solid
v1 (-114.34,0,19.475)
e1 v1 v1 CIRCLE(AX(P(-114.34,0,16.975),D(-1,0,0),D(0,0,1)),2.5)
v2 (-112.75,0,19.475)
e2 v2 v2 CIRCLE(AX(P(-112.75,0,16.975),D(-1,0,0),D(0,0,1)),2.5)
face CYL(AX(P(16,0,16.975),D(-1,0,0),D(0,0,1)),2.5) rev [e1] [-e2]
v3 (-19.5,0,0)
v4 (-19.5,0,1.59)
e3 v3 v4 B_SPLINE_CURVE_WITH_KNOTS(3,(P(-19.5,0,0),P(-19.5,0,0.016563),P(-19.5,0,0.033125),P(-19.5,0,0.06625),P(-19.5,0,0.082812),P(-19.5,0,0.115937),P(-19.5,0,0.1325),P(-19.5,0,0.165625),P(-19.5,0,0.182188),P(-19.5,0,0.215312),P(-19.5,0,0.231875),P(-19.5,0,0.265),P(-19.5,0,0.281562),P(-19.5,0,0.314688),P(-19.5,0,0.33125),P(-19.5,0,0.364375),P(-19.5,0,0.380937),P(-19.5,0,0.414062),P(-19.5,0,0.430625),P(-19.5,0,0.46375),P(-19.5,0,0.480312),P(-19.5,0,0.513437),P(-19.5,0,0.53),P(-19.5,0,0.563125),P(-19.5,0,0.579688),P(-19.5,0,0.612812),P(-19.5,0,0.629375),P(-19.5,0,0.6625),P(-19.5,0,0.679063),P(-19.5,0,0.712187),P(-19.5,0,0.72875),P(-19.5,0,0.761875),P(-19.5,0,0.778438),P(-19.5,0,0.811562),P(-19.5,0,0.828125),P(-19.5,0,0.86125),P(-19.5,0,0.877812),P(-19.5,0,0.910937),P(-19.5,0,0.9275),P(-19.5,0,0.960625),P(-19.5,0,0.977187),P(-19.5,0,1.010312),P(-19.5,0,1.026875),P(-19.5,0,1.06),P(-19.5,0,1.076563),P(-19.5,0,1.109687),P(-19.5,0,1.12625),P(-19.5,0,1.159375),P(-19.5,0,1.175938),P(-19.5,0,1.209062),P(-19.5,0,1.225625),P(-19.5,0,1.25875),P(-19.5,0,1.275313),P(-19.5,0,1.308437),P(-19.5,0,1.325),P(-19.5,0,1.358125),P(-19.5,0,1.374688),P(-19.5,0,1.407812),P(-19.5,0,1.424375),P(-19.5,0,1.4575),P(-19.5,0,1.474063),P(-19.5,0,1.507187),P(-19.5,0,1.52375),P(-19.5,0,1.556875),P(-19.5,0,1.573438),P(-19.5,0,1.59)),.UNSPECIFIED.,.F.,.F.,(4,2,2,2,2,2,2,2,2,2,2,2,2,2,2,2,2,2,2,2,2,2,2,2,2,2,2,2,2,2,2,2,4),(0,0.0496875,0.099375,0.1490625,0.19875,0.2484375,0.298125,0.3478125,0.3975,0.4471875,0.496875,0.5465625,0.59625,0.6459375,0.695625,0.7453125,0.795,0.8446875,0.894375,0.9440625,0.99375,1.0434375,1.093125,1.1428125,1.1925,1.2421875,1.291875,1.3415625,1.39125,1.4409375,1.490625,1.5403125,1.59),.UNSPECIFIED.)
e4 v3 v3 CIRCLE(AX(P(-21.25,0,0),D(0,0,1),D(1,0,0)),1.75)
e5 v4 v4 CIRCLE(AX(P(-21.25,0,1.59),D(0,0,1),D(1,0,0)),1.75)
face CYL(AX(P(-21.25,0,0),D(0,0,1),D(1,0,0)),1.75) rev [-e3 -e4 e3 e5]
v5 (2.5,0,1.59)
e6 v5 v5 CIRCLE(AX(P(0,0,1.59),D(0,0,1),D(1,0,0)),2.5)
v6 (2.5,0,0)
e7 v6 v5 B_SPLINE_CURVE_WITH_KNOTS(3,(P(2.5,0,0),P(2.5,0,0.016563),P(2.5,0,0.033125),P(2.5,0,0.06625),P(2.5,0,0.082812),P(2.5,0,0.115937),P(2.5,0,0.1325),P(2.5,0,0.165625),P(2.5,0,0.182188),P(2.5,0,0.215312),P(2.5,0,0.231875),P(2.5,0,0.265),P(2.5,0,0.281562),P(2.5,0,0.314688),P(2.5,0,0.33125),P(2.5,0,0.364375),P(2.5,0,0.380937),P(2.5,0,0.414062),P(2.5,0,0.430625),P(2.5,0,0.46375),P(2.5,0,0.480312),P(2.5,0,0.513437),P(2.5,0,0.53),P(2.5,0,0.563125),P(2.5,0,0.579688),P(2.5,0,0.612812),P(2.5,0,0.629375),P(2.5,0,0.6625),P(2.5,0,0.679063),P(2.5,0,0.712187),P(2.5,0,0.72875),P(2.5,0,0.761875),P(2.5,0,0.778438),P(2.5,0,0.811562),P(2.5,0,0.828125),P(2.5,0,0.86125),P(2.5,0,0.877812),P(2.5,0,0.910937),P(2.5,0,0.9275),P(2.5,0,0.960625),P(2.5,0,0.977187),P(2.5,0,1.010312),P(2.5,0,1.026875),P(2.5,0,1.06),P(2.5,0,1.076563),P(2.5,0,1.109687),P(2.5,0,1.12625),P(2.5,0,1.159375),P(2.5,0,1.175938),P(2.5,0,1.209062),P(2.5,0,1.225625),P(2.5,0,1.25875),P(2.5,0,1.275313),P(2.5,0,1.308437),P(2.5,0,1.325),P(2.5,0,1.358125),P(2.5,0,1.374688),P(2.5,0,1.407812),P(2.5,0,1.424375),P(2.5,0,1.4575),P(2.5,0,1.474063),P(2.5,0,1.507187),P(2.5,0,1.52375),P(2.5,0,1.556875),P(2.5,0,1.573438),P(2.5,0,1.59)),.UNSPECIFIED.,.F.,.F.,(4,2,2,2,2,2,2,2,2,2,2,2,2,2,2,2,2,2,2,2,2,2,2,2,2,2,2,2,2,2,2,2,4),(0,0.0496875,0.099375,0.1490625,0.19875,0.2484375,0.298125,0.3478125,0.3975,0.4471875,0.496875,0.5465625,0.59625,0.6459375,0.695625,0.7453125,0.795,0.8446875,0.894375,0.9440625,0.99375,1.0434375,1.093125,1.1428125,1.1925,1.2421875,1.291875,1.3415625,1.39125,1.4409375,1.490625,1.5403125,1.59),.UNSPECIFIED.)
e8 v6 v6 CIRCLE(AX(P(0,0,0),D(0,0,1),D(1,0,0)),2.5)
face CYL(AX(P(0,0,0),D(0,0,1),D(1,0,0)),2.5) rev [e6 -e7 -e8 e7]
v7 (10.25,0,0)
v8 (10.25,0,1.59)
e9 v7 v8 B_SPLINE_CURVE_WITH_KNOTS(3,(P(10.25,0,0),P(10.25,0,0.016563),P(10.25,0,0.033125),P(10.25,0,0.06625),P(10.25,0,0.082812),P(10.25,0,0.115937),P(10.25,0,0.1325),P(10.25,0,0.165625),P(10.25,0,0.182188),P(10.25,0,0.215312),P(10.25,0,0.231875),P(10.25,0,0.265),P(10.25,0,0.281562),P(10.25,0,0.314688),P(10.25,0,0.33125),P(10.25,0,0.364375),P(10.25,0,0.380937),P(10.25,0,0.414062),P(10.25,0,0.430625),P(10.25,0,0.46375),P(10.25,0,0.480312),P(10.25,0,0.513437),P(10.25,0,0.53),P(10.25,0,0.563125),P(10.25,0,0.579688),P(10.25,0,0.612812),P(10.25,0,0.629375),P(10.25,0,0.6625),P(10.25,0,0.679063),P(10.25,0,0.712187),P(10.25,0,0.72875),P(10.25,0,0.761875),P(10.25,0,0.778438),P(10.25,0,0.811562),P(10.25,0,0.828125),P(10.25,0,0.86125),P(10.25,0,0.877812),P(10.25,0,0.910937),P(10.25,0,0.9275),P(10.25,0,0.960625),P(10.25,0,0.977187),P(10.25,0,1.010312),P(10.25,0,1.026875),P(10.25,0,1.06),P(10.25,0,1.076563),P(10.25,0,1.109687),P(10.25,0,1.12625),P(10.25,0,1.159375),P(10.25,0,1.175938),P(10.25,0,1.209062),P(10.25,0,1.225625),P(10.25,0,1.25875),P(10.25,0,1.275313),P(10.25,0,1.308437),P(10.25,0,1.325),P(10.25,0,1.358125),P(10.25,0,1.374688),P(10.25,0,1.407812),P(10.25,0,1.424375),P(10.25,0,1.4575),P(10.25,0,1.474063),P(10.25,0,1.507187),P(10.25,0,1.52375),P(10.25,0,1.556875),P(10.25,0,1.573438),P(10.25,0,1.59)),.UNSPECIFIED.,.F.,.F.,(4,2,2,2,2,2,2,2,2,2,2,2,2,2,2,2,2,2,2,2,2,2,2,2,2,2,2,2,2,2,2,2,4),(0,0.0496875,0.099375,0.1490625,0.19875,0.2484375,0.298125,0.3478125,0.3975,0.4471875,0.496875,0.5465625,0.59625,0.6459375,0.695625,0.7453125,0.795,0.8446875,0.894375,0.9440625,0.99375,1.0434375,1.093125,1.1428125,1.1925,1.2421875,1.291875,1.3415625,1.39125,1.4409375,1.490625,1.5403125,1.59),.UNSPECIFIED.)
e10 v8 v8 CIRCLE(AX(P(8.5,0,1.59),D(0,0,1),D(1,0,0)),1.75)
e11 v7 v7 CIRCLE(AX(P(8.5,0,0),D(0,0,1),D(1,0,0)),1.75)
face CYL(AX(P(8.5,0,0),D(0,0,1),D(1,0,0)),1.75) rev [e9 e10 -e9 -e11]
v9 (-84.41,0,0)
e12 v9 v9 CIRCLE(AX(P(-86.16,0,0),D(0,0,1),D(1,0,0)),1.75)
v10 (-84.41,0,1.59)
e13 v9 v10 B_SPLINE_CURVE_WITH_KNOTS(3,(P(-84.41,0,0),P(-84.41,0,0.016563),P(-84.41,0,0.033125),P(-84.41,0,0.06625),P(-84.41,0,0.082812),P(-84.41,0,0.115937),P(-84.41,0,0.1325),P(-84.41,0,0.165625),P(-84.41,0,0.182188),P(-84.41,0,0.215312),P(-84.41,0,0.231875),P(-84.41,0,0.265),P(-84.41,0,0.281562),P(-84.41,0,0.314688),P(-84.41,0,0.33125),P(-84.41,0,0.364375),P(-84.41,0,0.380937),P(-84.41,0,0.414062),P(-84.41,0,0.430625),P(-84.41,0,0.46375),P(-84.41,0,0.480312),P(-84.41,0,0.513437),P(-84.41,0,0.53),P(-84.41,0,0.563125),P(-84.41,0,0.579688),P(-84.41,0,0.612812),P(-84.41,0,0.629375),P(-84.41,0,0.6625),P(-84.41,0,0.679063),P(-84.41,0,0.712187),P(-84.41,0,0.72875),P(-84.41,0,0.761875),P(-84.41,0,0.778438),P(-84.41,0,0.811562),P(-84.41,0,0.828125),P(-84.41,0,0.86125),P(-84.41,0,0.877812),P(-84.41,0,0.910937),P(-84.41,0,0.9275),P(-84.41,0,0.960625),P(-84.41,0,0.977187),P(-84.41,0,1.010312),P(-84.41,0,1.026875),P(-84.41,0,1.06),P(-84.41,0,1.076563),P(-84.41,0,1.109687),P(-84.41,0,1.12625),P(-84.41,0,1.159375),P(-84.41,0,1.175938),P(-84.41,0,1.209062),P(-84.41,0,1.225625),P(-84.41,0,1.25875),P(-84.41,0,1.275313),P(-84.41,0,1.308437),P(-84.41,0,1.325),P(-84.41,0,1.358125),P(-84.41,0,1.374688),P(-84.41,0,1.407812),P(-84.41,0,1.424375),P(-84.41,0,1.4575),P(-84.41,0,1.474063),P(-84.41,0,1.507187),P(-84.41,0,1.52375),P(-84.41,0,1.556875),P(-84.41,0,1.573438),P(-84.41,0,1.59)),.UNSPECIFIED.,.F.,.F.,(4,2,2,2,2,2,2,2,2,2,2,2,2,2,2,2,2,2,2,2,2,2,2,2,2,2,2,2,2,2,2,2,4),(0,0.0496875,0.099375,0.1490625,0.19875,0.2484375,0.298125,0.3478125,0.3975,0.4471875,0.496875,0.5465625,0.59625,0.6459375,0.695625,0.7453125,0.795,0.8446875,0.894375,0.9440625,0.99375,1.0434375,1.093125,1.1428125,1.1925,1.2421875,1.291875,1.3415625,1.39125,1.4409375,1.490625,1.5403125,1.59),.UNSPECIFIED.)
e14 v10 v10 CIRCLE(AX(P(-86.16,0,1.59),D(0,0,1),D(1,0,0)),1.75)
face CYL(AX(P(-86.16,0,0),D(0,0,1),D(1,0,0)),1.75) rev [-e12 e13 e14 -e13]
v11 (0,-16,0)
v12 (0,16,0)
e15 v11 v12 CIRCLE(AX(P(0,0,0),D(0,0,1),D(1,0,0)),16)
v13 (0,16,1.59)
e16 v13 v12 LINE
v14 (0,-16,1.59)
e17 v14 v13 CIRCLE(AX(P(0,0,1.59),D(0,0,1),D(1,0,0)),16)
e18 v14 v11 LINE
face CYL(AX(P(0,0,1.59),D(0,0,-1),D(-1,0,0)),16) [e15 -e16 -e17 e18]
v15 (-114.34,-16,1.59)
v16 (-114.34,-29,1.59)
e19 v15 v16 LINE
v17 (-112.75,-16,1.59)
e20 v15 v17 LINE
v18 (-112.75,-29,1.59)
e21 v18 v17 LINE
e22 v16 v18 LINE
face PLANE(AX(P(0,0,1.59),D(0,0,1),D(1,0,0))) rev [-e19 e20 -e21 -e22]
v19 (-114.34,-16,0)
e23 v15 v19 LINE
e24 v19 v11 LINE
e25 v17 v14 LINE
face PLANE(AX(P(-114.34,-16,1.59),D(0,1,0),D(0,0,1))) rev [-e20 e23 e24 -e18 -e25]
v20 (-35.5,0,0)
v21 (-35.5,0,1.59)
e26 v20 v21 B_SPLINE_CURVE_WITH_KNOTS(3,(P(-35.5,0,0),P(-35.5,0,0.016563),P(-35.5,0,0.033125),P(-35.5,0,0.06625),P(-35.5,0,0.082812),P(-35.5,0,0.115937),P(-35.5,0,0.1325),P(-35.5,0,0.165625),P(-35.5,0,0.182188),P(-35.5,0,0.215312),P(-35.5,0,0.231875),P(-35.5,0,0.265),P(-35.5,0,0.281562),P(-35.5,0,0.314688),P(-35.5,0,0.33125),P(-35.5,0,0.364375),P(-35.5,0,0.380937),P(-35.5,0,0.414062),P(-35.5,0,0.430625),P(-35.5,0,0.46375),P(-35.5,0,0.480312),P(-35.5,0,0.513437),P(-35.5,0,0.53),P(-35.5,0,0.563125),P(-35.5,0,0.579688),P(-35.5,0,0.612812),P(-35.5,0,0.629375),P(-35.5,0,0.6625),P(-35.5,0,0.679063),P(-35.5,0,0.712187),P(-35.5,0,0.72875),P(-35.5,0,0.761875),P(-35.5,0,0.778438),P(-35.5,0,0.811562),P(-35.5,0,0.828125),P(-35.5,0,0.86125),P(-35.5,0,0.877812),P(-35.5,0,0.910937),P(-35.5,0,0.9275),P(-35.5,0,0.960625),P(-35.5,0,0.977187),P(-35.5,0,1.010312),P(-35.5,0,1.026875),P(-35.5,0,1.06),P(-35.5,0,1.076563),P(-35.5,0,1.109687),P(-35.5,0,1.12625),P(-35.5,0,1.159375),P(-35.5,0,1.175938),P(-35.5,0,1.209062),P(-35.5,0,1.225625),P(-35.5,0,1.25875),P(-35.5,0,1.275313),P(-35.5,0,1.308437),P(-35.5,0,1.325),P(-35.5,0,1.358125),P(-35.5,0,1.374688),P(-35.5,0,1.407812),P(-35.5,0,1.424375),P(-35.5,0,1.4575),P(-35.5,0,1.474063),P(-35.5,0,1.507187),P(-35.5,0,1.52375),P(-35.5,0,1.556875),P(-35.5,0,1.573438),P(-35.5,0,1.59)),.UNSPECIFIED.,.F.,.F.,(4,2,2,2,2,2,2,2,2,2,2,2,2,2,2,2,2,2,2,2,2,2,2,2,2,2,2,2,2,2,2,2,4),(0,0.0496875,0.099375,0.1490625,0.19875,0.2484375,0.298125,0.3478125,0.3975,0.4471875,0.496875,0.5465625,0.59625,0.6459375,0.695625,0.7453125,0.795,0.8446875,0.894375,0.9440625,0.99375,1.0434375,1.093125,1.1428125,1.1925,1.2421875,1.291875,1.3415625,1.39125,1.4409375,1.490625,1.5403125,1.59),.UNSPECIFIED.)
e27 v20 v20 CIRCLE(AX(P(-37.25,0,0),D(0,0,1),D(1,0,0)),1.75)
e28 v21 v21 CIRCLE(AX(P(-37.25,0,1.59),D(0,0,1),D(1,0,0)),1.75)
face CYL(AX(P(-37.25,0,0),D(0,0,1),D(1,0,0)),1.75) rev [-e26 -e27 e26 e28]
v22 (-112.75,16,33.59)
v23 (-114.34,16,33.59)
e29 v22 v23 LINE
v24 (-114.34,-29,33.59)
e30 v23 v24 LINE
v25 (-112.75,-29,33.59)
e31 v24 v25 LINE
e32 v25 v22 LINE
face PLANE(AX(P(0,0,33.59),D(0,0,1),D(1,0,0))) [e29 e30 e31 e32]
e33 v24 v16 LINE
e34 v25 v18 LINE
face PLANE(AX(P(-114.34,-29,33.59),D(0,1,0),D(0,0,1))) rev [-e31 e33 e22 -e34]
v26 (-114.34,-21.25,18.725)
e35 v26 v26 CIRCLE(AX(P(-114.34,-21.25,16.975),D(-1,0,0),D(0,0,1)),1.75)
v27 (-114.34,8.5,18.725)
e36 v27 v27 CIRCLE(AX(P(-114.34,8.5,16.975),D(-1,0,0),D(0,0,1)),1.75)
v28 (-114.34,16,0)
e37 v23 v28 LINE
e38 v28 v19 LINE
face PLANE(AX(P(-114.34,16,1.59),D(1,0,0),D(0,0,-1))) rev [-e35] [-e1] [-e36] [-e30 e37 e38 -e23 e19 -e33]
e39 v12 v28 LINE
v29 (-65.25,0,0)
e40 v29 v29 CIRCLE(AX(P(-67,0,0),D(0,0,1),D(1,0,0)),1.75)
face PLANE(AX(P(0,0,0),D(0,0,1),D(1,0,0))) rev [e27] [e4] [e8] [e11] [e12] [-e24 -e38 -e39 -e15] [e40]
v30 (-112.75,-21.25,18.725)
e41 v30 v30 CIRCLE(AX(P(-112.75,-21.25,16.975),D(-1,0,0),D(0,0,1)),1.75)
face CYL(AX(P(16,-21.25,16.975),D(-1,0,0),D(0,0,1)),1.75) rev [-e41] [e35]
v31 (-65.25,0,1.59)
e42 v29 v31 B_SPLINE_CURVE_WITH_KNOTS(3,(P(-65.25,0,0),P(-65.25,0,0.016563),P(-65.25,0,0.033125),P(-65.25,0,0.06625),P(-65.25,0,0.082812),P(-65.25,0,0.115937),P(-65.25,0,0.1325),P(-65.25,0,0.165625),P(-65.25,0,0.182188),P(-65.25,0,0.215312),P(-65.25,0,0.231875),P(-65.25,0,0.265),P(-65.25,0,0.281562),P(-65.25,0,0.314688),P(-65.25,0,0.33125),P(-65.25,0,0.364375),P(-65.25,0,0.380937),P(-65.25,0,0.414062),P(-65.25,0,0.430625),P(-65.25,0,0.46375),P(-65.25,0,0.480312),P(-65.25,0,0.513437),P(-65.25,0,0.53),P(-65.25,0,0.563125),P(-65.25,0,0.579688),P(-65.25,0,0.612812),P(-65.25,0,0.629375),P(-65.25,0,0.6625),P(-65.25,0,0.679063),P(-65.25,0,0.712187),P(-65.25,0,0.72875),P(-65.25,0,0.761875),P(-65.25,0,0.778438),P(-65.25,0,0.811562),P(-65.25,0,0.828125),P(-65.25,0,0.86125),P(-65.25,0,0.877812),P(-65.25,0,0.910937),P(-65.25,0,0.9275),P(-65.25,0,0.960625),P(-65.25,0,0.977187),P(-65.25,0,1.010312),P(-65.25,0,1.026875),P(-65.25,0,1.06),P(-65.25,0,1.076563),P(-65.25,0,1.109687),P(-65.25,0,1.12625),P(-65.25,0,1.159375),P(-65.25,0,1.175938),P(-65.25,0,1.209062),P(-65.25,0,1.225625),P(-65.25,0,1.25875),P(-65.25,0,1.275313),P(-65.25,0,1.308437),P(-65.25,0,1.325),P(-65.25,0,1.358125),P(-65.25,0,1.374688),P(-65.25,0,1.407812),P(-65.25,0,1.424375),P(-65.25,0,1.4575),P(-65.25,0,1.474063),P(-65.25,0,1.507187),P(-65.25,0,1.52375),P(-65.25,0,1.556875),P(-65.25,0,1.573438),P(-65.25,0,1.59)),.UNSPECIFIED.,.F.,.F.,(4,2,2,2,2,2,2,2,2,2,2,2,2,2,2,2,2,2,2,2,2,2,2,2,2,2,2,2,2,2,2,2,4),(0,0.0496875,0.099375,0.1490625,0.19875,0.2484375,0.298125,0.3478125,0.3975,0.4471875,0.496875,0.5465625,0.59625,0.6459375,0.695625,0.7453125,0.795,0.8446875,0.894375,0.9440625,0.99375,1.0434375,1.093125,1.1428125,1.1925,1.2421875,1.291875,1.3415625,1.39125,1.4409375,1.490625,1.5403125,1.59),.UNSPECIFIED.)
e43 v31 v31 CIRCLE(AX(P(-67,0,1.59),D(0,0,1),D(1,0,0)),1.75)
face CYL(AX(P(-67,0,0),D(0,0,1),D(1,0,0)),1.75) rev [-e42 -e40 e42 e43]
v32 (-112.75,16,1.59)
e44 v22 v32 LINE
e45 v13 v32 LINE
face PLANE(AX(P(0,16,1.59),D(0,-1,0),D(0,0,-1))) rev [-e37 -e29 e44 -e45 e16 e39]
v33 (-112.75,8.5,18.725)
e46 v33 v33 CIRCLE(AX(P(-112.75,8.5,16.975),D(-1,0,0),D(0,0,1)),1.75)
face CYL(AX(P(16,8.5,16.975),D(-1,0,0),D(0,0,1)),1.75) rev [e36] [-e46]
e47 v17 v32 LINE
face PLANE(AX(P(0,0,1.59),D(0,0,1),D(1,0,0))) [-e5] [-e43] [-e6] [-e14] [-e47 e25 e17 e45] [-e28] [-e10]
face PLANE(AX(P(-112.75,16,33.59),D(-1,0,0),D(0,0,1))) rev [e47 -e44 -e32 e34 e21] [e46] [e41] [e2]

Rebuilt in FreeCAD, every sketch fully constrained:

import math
import FreeCAD as App
import Part
import Sketcher

V = App.Vector
Q = App.Units.Quantity

doc = App.newDocument("Part")
params = doc.addObject("Spreadsheet::Sheet", "Params")
for row, (alias, value) in enumerate([
    ("sketch1_radius", "16 mm"),
    ("sketch1_width", "114.34 mm"),
    ("pad1_length", "1.59 mm"),
    ("sketch2_height", "45 mm"),
    ("sketch2_width", "1.59 mm"),
    ("pad2_length", "32 mm"),
    ("sketch3_diameter", "5 mm"),
    ("sketch3_diameter2", "3.5 mm"),
    ("sketch4_diameter", "5 mm"),
    ("sketch4_diameter2", "3.5 mm"),
], start=1):
    params.set(f"A{row}", alias)
    params.set(f"B{row}", "=" + value)
    params.setAlias(f"B{row}", alias)

body = doc.addObject("PartDesign::Body", "Body")

# Sketch on XY plane
sketch1 = body.newObject("Sketcher::SketchObject", "Sketch")
sketch1.AttachmentSupport = (doc.getObject("XY_Plane"), [""])
sketch1.MapMode = "FlatFace"
sketch1.addGeometry([
    Part.LineSegment(V(0, 16, 0), V(-114.34, 16, 0)),
    Part.LineSegment(V(-114.34, 16, 0), V(-114.34, -16, 0)),
    Part.LineSegment(V(-114.34, -16, 0), V(0, -16, 0)),
    Part.ArcOfCircle(Part.Circle(V(0, 0, 0), V(0, 0, 1), 16), math.radians(-90), math.radians(90)),
], False)
sketch1.addConstraint([
    Sketcher.Constraint("Coincident", 0, 2, 1, 1),
    Sketcher.Constraint("Coincident", 1, 2, 2, 1),
    Sketcher.Constraint("Tangent", 2, 2, 3, 1),
    Sketcher.Constraint("Tangent", 3, 2, 0, 1),
    Sketcher.Constraint("Horizontal", 0),
    Sketcher.Constraint("Vertical", 1),
    Sketcher.Constraint("Horizontal", 2),
    Sketcher.Constraint("Coincident", 3, 3, -1, 1),
    Sketcher.Constraint("Radius", 3, Q("16 mm")),
    Sketcher.Constraint("DistanceX", 0, 2, 0, 1, Q("114.34 mm")),
])
sketch1.setExpression("Constraints[8]", "Params.sketch1_radius")
sketch1.setExpression("Constraints[9]", "Params.sketch1_width")
pad1 = body.newObject("PartDesign::Pad", "Pad")
pad1.Profile = sketch1
pad1.setExpression("Length", "Params.pad1_length")

# Sketch on XY plane
sketch2 = body.newObject("Sketcher::SketchObject", "Sketch001")
sketch2.AttachmentSupport = (doc.getObject("XY_Plane"), [""])
sketch2.MapMode = "FlatFace"
sketch2.AttachmentOffset = App.Placement(V(0, 0, 1.59), App.Rotation())
sketch2.addGeometry([
    Part.LineSegment(V(-114.34, 16, 0), V(-114.34, -29, 0)),
    Part.LineSegment(V(-114.34, -29, 0), V(-112.75, -29, 0)),
    Part.LineSegment(V(-112.75, -29, 0), V(-112.75, 16, 0)),
    Part.LineSegment(V(-112.75, 16, 0), V(-114.34, 16, 0)),
], False)
sketch2.addConstraint([
    Sketcher.Constraint("Coincident", 0, 2, 1, 1),
    Sketcher.Constraint("Coincident", 1, 2, 2, 1),
    Sketcher.Constraint("Coincident", 2, 2, 3, 1),
    Sketcher.Constraint("Coincident", 3, 2, 0, 1),
    Sketcher.Constraint("Vertical", 0),
    Sketcher.Constraint("Horizontal", 1),
    Sketcher.Constraint("Vertical", 2),
    Sketcher.Constraint("Horizontal", 3),
    Sketcher.Constraint("DistanceY", 0, 2, 0, 1, Q("45 mm")),
    Sketcher.Constraint("DistanceY", 0, 2, -1, 1, Q("29 mm")),
    Sketcher.Constraint("DistanceX", 1, 1, 1, 2, Q("1.59 mm")),
    Sketcher.Constraint("DistanceX", 0, 2, -1, 1, Q("114.34 mm")),
])
sketch2.setExpression("Constraints[8]", "Params.sketch2_height")
sketch2.setExpression("Constraints[10]", "Params.sketch2_width")
pad2 = body.newObject("PartDesign::Pad", "Pad001")
pad2.Profile = sketch2
pad2.setExpression("Length", "Params.pad2_length")

# Sketch on XY plane
sketch3 = body.newObject("Sketcher::SketchObject", "Sketch002")
sketch3.AttachmentSupport = (doc.getObject("XY_Plane"), [""])
sketch3.MapMode = "FlatFace"
sketch3.AttachmentOffset = App.Placement(V(0, 0, 1.59), App.Rotation())
sketch3.addGeometry([
    Part.Circle(V(0, 0, 0), V(0, 0, 1), 2.5),  # 0
    Part.Circle(V(8.5, 0, 0), V(0, 0, 1), 1.75),  # 1
    Part.Circle(V(-21.25, 0, 0), V(0, 0, 1), 1.75),  # 2
    Part.Circle(V(-37.25, 0, 0), V(0, 0, 1), 1.75),  # 3
    Part.Circle(V(-67, 0, 0), V(0, 0, 1), 1.75),  # 4
    Part.Circle(V(-86.16, 0, 0), V(0, 0, 1), 1.75),  # 5
], False)
sketch3.addConstraint([
    Sketcher.Constraint("Coincident", 0, 3, -1, 1),
    Sketcher.Constraint("Equal", 1, 2),
    Sketcher.Constraint("Equal", 2, 3),
    Sketcher.Constraint("Equal", 3, 4),
    Sketcher.Constraint("Equal", 4, 5),
    Sketcher.Constraint("PointOnObject", 1, 3, -1),
    Sketcher.Constraint("PointOnObject", 2, 3, -1),
    Sketcher.Constraint("PointOnObject", 3, 3, -1),
    Sketcher.Constraint("PointOnObject", 4, 3, -1),
    Sketcher.Constraint("PointOnObject", 5, 3, -1),
    Sketcher.Constraint("Diameter", 0, Q("5 mm")),
    Sketcher.Constraint("Diameter", 1, Q("3.5 mm")),
    Sketcher.Constraint("DistanceX", 4, 3, -1, 1, Q("67 mm")),
    Sketcher.Constraint("DistanceX", 3, 3, 2, 3, Q("16 mm")),
    Sketcher.Constraint("DistanceX", -1, 1, 1, 3, Q("8.5 mm")),
    Sketcher.Constraint("DistanceX", 2, 3, -1, 1, Q("21.25 mm")),
    Sketcher.Constraint("DistanceX", 5, 3, -1, 1, Q("86.16 mm")),
])
sketch3.setExpression("Constraints[10]", "Params.sketch3_diameter")
sketch3.setExpression("Constraints[11]", "Params.sketch3_diameter2")
pocket1 = body.newObject("PartDesign::Pocket", "Pocket")
pocket1.Profile = sketch3
pocket1.Type = "ThroughAll"

# Sketch on YZ plane
sketch4 = body.newObject("Sketcher::SketchObject", "Sketch003")
sketch4.AttachmentSupport = (doc.getObject("YZ_Plane"), [""])
sketch4.MapMode = "FlatFace"
sketch4.AttachmentOffset = App.Placement(V(0, 0, -114.34), App.Rotation())
sketch4.addGeometry([
    Part.Circle(V(0, 16.975, 0), V(0, 0, 1), 2.5),
    Part.Circle(V(8.5, 16.975, 0), V(0, 0, 1), 1.75),
    Part.Circle(V(-21.25, 16.975, 0), V(0, 0, 1), 1.75),
], False)
sketch4.addConstraint([
    Sketcher.Constraint("Equal", 1, 2),
    Sketcher.Constraint("PointOnObject", 0, 3, -2),
    Sketcher.Constraint("Horizontal", 0, 3, 1, 3),
    Sketcher.Constraint("Horizontal", 1, 3, 2, 3),
    Sketcher.Constraint("Diameter", 0, Q("5 mm")),
    Sketcher.Constraint("Diameter", 1, Q("3.5 mm")),
    Sketcher.Constraint("DistanceX", -1, 1, 1, 3, Q("8.5 mm")),
    Sketcher.Constraint("DistanceX", 2, 3, -1, 1, Q("21.25 mm")),
    Sketcher.Constraint("DistanceY", -1, 1, 0, 3, Q("16.975 mm")),
])
sketch4.setExpression("Constraints[4]", "Params.sketch4_diameter")
sketch4.setExpression("Constraints[5]", "Params.sketch4_diameter2")
pocket2 = body.newObject("PartDesign::Pocket", "Pocket001")
pocket2.Profile = sketch4
pocket2.Type = "ThroughAll"
pocket2.Reversed = True

doc.recompute()
